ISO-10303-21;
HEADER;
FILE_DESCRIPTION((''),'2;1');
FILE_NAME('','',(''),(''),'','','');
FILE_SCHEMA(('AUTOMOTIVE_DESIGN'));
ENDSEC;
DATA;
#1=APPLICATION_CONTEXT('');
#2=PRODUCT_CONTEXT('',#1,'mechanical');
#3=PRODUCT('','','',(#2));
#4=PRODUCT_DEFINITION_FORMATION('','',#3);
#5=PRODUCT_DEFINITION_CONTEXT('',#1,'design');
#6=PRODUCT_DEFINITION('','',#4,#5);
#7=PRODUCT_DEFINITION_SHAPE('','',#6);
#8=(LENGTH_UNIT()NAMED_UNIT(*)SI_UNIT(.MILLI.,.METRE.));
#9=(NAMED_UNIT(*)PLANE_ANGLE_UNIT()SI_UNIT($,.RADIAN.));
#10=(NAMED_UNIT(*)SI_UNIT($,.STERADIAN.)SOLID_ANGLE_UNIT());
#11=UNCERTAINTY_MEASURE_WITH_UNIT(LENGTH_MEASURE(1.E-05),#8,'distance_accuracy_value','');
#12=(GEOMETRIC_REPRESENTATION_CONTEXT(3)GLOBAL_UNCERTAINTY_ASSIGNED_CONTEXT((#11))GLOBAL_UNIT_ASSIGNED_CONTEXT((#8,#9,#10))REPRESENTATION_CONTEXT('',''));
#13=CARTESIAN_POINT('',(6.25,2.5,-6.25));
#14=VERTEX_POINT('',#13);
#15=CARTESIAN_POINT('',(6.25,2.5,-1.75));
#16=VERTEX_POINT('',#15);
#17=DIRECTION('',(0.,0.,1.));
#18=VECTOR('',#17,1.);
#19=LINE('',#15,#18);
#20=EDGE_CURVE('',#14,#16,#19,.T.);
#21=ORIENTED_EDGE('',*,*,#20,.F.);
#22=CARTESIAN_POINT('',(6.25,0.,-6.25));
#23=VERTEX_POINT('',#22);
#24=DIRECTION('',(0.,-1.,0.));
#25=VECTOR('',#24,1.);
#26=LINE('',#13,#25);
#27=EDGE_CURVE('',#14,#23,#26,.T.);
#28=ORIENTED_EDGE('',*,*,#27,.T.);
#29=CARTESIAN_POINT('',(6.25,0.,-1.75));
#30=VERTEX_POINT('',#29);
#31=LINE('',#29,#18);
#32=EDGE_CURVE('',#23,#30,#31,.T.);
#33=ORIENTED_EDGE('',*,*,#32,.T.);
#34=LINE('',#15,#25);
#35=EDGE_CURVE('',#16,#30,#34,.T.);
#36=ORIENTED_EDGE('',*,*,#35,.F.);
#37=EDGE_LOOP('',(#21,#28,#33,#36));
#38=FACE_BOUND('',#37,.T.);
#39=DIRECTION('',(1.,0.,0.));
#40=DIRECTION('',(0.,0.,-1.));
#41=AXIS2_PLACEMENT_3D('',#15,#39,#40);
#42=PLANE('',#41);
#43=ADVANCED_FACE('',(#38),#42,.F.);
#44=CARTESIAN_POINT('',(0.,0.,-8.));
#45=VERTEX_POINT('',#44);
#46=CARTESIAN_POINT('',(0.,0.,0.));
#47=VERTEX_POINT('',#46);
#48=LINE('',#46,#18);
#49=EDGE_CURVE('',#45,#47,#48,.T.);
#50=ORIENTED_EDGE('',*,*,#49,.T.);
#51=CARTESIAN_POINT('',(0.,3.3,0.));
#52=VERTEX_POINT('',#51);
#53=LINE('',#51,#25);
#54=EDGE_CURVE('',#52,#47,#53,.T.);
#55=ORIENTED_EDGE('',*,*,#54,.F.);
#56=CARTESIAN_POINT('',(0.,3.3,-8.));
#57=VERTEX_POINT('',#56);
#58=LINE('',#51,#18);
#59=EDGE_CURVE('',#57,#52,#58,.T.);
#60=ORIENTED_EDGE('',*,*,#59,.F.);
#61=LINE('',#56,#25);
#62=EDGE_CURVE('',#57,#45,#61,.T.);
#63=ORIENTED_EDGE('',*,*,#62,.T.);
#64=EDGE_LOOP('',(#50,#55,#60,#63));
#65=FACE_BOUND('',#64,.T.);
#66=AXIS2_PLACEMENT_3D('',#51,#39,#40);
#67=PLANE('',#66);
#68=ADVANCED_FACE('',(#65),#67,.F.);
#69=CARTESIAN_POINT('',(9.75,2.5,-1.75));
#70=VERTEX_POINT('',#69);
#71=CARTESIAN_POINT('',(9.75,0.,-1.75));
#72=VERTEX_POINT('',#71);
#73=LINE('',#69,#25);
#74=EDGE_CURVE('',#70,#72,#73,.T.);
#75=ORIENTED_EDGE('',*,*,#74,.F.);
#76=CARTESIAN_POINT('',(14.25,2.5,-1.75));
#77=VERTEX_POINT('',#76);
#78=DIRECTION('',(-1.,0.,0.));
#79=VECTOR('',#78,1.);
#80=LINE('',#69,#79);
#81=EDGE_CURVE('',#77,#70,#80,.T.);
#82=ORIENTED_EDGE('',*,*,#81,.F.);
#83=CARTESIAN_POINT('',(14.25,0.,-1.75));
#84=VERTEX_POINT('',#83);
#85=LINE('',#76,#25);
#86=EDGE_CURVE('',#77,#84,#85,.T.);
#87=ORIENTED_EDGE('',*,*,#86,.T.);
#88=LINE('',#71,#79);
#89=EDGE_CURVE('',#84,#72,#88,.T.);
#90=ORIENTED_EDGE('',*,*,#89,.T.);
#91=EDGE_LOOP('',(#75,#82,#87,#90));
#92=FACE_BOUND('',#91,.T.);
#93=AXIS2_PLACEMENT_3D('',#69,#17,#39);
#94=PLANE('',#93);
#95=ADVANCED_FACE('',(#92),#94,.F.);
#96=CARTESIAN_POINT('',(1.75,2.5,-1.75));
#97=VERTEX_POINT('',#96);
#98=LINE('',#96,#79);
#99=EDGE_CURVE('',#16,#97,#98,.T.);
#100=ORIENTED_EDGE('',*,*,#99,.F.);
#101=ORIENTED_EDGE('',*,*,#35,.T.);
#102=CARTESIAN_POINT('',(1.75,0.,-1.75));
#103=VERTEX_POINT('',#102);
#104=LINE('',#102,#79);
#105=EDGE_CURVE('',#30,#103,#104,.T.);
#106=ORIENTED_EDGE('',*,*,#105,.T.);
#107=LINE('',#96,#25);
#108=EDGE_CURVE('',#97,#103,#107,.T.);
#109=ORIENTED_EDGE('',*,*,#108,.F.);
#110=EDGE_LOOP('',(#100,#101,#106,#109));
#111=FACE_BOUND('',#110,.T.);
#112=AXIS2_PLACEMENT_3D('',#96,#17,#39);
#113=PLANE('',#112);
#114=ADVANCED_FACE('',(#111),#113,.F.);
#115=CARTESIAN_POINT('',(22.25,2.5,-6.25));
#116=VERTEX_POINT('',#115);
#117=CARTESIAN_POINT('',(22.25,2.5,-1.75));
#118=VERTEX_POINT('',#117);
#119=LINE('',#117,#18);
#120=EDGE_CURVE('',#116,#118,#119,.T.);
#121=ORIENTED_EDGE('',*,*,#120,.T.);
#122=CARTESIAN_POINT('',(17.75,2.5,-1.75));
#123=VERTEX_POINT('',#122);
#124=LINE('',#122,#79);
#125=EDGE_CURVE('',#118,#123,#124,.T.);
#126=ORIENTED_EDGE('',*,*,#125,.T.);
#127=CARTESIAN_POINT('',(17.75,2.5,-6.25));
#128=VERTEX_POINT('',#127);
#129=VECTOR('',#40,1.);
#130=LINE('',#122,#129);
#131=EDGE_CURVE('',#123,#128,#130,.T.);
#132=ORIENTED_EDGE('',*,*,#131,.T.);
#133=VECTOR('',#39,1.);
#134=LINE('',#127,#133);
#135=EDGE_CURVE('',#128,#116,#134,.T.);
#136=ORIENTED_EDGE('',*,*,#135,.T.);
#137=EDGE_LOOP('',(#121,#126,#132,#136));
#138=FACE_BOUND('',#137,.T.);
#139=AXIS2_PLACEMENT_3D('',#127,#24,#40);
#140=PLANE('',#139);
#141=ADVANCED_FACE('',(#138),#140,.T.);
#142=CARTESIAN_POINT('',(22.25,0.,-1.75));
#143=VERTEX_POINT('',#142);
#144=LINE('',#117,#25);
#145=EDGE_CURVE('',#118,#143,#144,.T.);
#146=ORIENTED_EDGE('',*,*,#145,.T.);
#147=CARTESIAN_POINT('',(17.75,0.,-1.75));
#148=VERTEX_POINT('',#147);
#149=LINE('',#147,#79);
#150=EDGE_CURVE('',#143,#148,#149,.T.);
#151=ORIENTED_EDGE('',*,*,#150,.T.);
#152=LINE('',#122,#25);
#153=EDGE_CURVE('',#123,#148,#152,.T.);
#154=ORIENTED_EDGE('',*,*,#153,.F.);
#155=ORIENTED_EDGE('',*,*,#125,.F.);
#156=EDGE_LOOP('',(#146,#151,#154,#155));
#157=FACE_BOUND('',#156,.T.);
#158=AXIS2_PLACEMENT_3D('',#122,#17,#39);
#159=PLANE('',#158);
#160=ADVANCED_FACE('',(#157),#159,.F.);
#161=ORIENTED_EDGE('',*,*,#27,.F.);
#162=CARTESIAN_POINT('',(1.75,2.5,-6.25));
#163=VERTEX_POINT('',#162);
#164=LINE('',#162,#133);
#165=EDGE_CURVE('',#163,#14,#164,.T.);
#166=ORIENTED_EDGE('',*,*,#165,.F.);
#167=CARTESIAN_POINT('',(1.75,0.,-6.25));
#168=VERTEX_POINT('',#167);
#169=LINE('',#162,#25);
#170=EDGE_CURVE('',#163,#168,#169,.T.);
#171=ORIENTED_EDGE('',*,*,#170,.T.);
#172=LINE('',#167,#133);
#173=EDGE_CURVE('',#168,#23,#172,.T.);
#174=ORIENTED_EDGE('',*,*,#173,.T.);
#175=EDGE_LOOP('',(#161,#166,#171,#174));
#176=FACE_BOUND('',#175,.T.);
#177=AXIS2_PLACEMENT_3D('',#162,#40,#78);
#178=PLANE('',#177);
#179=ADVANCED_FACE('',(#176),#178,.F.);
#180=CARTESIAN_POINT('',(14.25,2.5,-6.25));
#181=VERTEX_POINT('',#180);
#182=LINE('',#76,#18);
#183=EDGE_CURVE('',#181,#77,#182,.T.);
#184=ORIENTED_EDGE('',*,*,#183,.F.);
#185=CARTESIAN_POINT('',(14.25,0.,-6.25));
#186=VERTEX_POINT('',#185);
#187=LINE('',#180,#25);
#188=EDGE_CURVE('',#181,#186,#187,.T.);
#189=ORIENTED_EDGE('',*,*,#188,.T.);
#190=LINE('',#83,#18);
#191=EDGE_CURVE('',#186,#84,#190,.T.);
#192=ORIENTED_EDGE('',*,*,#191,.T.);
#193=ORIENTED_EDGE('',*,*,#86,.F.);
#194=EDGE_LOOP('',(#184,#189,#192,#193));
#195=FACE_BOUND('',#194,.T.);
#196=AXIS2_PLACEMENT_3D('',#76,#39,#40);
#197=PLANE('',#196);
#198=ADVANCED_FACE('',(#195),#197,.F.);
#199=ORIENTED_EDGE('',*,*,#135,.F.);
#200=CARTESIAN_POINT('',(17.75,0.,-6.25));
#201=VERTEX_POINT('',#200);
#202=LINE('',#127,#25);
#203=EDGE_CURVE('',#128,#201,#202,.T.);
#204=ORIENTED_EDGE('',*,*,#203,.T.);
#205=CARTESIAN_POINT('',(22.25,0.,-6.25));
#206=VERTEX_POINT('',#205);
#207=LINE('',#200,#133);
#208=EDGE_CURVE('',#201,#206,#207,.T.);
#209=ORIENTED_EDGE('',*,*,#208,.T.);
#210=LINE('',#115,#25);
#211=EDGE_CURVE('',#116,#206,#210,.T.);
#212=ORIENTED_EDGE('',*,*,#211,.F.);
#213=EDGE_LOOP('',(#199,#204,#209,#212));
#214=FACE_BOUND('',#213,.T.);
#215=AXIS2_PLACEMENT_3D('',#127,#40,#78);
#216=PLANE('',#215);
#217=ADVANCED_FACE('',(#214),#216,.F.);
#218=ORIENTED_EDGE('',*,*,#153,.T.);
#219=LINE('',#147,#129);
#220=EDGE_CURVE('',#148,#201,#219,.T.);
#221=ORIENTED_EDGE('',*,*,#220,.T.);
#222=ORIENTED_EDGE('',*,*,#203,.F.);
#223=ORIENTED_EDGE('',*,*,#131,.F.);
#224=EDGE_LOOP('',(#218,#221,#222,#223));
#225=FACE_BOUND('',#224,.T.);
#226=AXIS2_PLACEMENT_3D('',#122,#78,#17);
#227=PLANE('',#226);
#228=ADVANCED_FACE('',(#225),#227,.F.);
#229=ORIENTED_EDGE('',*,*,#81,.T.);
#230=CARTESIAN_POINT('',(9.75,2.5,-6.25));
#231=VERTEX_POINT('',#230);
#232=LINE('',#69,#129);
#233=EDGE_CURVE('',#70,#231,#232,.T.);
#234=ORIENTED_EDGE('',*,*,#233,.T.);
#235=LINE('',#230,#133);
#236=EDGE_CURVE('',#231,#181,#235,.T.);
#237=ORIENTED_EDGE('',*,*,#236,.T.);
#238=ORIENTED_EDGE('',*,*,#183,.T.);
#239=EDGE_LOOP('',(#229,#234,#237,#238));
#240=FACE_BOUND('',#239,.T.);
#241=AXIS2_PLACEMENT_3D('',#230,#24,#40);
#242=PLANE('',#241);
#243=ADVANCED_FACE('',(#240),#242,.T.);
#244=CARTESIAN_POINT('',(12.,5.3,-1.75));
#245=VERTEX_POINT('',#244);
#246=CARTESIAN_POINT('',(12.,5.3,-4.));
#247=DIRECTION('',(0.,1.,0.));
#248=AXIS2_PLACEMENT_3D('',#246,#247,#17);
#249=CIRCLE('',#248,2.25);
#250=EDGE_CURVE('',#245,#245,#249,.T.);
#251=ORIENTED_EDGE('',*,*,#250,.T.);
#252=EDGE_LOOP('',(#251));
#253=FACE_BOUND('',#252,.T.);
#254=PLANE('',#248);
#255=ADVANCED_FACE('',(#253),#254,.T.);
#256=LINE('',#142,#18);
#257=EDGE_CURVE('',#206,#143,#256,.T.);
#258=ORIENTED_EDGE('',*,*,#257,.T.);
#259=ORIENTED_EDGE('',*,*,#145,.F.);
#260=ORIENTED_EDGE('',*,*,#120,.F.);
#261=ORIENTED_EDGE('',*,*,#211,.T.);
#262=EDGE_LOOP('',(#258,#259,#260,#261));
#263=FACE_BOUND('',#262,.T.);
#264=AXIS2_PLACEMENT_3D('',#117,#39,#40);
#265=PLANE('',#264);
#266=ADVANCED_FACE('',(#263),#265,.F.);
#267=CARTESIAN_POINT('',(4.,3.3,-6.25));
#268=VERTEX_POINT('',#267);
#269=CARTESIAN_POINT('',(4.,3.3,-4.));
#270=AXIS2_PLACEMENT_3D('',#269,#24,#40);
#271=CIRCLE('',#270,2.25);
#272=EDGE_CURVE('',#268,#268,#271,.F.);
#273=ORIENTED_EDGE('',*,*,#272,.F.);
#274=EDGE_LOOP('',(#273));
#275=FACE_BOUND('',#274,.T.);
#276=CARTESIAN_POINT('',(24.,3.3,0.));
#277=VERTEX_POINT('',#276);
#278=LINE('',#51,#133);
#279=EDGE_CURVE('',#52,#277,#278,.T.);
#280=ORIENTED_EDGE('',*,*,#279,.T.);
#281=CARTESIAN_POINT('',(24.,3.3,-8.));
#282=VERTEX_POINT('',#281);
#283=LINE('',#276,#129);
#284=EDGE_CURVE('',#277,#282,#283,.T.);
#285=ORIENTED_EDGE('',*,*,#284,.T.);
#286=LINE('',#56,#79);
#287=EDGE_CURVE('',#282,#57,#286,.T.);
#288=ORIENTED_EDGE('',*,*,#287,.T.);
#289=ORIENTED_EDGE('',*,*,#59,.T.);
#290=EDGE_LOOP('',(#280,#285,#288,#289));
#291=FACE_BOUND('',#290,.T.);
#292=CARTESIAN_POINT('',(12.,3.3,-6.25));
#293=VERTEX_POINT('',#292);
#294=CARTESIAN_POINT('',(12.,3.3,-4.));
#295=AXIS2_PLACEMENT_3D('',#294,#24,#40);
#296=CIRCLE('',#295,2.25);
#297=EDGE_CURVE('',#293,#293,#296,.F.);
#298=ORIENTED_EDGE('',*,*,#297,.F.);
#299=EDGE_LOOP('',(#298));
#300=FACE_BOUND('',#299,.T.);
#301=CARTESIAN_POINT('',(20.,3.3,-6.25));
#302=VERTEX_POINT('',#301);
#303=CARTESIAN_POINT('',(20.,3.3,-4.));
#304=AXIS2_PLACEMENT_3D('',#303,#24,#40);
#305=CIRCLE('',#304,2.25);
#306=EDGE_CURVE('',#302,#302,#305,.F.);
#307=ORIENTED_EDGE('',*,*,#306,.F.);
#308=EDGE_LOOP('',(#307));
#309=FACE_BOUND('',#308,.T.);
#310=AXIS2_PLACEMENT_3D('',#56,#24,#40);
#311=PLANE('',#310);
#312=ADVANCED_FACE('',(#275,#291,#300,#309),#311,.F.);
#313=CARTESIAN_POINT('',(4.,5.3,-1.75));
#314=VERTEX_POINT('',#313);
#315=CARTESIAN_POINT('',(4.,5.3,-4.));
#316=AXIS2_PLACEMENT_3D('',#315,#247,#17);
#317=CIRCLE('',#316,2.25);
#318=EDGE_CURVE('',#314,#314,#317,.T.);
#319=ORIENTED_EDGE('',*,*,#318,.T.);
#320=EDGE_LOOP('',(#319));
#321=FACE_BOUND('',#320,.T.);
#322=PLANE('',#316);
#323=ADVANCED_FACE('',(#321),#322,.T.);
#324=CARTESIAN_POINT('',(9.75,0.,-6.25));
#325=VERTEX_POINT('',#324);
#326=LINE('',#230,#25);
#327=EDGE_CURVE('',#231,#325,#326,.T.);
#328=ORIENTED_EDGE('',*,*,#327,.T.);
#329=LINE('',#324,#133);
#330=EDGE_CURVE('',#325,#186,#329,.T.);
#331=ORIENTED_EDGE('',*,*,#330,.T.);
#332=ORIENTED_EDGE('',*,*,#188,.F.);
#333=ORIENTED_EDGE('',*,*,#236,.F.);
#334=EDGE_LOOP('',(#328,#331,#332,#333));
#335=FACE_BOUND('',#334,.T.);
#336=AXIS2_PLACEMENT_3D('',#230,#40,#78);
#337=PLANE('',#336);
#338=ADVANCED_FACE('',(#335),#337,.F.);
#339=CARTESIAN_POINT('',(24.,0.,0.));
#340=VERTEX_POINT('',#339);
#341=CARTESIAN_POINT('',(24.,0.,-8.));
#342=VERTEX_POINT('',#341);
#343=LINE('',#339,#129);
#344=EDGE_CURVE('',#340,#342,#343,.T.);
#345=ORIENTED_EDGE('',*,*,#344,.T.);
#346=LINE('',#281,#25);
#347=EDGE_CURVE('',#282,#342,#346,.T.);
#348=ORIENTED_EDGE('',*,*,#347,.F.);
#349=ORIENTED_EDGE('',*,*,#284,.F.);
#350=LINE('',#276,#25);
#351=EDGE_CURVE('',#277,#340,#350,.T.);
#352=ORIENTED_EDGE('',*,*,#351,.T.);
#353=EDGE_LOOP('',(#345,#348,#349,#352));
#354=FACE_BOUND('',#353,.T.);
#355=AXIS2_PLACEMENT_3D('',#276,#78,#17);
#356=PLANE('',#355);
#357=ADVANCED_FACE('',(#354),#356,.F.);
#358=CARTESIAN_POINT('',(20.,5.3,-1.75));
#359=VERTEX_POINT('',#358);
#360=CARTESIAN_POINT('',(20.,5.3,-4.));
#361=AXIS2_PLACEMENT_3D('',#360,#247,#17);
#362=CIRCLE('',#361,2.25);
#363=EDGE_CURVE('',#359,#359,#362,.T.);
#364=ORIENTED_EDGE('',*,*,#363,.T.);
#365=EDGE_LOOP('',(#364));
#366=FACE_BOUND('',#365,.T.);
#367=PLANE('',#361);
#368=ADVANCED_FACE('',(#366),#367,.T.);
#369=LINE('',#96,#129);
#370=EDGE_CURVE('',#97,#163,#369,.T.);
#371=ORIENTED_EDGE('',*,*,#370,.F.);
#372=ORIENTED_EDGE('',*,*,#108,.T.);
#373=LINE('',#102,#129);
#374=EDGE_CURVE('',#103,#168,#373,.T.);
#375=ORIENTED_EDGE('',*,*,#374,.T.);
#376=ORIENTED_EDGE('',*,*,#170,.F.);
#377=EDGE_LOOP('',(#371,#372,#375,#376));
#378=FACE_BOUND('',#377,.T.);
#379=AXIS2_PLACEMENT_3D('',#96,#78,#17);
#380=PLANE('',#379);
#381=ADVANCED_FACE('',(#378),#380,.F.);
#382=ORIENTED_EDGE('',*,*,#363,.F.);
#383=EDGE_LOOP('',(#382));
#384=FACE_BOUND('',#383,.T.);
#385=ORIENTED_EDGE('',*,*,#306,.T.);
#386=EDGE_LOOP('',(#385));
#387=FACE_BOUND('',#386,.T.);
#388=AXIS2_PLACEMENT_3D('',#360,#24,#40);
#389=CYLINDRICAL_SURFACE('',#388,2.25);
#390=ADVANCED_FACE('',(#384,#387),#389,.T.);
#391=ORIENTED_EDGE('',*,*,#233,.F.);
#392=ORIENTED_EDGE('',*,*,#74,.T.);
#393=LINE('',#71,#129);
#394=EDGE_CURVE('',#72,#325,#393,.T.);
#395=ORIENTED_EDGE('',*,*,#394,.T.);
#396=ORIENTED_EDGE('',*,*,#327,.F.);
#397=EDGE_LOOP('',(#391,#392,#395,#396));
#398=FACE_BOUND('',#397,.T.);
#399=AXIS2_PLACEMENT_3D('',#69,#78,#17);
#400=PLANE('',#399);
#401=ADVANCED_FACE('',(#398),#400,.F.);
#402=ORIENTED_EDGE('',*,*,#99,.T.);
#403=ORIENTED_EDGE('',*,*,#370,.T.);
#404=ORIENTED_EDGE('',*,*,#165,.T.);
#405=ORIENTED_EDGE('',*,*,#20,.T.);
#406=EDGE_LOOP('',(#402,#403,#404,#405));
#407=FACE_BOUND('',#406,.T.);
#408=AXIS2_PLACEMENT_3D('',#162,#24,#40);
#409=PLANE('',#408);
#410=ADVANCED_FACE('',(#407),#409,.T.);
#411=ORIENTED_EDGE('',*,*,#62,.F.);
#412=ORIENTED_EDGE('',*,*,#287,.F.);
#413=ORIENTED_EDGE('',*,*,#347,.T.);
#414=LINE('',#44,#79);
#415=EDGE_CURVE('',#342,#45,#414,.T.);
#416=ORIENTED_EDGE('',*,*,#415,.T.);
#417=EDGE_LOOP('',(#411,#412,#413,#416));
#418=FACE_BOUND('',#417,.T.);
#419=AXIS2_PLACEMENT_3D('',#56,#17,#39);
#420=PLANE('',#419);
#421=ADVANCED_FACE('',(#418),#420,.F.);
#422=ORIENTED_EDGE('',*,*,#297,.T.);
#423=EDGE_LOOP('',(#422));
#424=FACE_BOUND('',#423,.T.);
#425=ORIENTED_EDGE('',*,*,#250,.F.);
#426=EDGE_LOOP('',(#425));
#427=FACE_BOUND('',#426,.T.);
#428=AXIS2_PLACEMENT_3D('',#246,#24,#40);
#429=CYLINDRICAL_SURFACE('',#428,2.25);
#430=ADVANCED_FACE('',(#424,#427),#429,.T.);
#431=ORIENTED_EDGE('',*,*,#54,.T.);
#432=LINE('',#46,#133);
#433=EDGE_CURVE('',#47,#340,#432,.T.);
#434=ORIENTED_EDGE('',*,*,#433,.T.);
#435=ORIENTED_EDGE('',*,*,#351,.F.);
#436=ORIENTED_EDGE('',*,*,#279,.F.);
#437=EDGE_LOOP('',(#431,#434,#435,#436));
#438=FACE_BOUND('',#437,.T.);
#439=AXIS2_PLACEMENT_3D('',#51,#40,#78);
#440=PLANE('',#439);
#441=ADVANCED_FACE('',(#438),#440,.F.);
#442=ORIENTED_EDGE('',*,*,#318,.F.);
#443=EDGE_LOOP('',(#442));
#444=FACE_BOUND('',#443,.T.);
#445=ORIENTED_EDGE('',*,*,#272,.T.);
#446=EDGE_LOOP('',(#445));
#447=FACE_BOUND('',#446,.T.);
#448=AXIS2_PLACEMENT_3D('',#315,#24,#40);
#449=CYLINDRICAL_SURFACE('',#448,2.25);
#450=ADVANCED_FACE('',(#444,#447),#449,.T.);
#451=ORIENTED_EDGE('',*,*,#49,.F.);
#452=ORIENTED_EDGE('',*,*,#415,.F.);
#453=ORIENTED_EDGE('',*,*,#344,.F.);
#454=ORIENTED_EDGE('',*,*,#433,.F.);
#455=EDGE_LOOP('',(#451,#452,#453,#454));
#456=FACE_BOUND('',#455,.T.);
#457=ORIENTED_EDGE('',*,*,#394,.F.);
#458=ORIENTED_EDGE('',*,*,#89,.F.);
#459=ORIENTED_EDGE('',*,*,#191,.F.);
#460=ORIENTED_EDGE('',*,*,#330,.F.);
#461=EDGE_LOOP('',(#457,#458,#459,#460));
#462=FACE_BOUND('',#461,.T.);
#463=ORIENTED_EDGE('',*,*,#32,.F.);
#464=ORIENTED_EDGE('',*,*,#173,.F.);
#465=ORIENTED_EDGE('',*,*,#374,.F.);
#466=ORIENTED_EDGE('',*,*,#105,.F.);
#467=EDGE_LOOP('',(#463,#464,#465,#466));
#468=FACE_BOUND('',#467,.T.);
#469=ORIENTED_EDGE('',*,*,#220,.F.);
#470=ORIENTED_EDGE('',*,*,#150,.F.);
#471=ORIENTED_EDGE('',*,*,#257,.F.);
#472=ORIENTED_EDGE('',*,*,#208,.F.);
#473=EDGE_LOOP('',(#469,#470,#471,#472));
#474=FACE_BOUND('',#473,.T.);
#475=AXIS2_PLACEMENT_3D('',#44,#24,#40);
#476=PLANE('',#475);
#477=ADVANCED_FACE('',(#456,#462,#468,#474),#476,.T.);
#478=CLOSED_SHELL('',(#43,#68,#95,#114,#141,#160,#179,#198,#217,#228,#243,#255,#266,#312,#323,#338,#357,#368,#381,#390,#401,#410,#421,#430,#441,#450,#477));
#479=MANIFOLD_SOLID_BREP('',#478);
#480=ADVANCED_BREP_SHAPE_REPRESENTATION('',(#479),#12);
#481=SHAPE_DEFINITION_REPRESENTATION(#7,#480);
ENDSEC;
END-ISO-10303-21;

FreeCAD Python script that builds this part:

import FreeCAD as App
import Part
import Sketcher
from FreeCAD import Vector
Q = App.Units.Quantity

doc = App.newDocument("Part")
body = doc.addObject("PartDesign::Body", "Body")

# Sketch on XZ plane
sketch1 = body.newObject("Sketcher::SketchObject", "Sketch")
sketch1.AttachmentSupport = (doc.getObject("XZ_Plane"), [""])
sketch1.MapMode = "FlatFace"
sketch1.addGeometry([
    Part.LineSegment(Vector(0, -8, 0), Vector(0, 0, 0)),
    Part.LineSegment(Vector(0, 0, 0), Vector(24, 0, 0)),
    Part.LineSegment(Vector(24, 0, 0), Vector(24, -8, 0)),
    Part.LineSegment(Vector(24, -8, 0), Vector(0, -8, 0)),
], False)
sketch1.addConstraint([
    Sketcher.Constraint("Coincident", 0, 2, 1, 1),
    Sketcher.Constraint("Coincident", 1, 2, 2, 1),
    Sketcher.Constraint("Coincident", 2, 2, 3, 1),
    Sketcher.Constraint("Coincident", 3, 2, 0, 1),
    Sketcher.Constraint("Vertical", 0),
    Sketcher.Constraint("Horizontal", 1),
    Sketcher.Constraint("Vertical", 2),
    Sketcher.Constraint("Horizontal", 3),
    Sketcher.Constraint("Coincident", 0, 2, -1, 1),
    Sketcher.Constraint("DistanceX", 1, 1, 1, 2, Q("24 mm")),
    Sketcher.Constraint("DistanceY", 0, 1, 0, 2, Q("8 mm")),
])
pad1 = body.newObject("PartDesign::Pad", "Pad")
pad1.Profile = sketch1
pad1.Length = 3.3
pad1.Reversed = True

# Sketch on XZ plane
sketch2 = body.newObject("Sketcher::SketchObject", "Sketch001")
sketch2.AttachmentSupport = (doc.getObject("XZ_Plane"), [""])
sketch2.MapMode = "FlatFace"
sketch2.AttachmentOffset = App.Placement(Vector(0, 0, -3.3), App.Rotation())
sketch2.addGeometry(Part.Circle(Vector(4, -4, 0), Vector(0, 0, 1), 2.2), False)
sketch2.addConstraint([
    Sketcher.Constraint("Diameter", 0, Q("4.5 mm")),
    Sketcher.Constraint("DistanceX", -1, 1, 0, 3, Q("4 mm")),
    Sketcher.Constraint("DistanceY", 0, 3, -1, 1, Q("4 mm")),
])
pad2 = body.newObject("PartDesign::Pad", "Pad001")
pad2.Profile = sketch2
pad2.Length = 2
pad2.Reversed = True

# Sketch on XZ plane
sketch3 = body.newObject("Sketcher::SketchObject", "Sketch002")
sketch3.AttachmentSupport = (doc.getObject("XZ_Plane"), [""])
sketch3.MapMode = "FlatFace"
sketch3.addGeometry([
    Part.LineSegment(Vector(17.8, -1.8, 0), Vector(17.8, -6.2, 0)),
    Part.LineSegment(Vector(17.8, -6.2, 0), Vector(22.2, -6.2, 0)),
    Part.LineSegment(Vector(22.2, -6.2, 0), Vector(22.2, -1.8, 0)),
    Part.LineSegment(Vector(22.2, -1.8, 0), Vector(17.8, -1.8, 0)),
], False)
sketch3.addConstraint([
    Sketcher.Constraint("Coincident", 0, 2, 1, 1),
    Sketcher.Constraint("Coincident", 1, 2, 2, 1),
    Sketcher.Constraint("Coincident", 2, 2, 3, 1),
    Sketcher.Constraint("Coincident", 3, 2, 0, 1),
    Sketcher.Constraint("Vertical", 0),
    Sketcher.Constraint("Horizontal", 1),
    Sketcher.Constraint("Vertical", 2),
    Sketcher.Constraint("Horizontal", 3),
    Sketcher.Constraint("Equal", 3, 0),
    Sketcher.Constraint("DistanceX", 1, 1, 1, 2, Q("4.5 mm")),
    Sketcher.Constraint("DistanceX", -1, 1, 0, 2, Q("17.75 mm")),
    Sketcher.Constraint("DistanceY", 0, 2, -1, 1, Q("6.25 mm")),
])
pocket1 = body.newObject("PartDesign::Pocket", "Pocket")
pocket1.Profile = sketch3
pocket1.Length = 2.5
doc.recompute()

linearpattern = body.newObject("PartDesign::LinearPattern", "LinearPattern")
linearpattern.Originals = [pad2]
linearpattern.Direction = (doc.getObject("X_Axis"), [""])
linearpattern.Mode = "offset"
linearpattern.Offset = 8
linearpattern.Occurrences = 3
body.Tip = linearpattern
doc.recompute()

linearpattern2 = body.newObject("PartDesign::LinearPattern", "LinearPattern001")
linearpattern2.Originals = [pocket1]
linearpattern2.Direction = (doc.getObject("X_Axis"), [""])
linearpattern2.Mode = "offset"
linearpattern2.Offset = 8
linearpattern2.Occurrences = 4
linearpattern2.Reversed = True
body.Tip = linearpattern2

doc.recompute()
